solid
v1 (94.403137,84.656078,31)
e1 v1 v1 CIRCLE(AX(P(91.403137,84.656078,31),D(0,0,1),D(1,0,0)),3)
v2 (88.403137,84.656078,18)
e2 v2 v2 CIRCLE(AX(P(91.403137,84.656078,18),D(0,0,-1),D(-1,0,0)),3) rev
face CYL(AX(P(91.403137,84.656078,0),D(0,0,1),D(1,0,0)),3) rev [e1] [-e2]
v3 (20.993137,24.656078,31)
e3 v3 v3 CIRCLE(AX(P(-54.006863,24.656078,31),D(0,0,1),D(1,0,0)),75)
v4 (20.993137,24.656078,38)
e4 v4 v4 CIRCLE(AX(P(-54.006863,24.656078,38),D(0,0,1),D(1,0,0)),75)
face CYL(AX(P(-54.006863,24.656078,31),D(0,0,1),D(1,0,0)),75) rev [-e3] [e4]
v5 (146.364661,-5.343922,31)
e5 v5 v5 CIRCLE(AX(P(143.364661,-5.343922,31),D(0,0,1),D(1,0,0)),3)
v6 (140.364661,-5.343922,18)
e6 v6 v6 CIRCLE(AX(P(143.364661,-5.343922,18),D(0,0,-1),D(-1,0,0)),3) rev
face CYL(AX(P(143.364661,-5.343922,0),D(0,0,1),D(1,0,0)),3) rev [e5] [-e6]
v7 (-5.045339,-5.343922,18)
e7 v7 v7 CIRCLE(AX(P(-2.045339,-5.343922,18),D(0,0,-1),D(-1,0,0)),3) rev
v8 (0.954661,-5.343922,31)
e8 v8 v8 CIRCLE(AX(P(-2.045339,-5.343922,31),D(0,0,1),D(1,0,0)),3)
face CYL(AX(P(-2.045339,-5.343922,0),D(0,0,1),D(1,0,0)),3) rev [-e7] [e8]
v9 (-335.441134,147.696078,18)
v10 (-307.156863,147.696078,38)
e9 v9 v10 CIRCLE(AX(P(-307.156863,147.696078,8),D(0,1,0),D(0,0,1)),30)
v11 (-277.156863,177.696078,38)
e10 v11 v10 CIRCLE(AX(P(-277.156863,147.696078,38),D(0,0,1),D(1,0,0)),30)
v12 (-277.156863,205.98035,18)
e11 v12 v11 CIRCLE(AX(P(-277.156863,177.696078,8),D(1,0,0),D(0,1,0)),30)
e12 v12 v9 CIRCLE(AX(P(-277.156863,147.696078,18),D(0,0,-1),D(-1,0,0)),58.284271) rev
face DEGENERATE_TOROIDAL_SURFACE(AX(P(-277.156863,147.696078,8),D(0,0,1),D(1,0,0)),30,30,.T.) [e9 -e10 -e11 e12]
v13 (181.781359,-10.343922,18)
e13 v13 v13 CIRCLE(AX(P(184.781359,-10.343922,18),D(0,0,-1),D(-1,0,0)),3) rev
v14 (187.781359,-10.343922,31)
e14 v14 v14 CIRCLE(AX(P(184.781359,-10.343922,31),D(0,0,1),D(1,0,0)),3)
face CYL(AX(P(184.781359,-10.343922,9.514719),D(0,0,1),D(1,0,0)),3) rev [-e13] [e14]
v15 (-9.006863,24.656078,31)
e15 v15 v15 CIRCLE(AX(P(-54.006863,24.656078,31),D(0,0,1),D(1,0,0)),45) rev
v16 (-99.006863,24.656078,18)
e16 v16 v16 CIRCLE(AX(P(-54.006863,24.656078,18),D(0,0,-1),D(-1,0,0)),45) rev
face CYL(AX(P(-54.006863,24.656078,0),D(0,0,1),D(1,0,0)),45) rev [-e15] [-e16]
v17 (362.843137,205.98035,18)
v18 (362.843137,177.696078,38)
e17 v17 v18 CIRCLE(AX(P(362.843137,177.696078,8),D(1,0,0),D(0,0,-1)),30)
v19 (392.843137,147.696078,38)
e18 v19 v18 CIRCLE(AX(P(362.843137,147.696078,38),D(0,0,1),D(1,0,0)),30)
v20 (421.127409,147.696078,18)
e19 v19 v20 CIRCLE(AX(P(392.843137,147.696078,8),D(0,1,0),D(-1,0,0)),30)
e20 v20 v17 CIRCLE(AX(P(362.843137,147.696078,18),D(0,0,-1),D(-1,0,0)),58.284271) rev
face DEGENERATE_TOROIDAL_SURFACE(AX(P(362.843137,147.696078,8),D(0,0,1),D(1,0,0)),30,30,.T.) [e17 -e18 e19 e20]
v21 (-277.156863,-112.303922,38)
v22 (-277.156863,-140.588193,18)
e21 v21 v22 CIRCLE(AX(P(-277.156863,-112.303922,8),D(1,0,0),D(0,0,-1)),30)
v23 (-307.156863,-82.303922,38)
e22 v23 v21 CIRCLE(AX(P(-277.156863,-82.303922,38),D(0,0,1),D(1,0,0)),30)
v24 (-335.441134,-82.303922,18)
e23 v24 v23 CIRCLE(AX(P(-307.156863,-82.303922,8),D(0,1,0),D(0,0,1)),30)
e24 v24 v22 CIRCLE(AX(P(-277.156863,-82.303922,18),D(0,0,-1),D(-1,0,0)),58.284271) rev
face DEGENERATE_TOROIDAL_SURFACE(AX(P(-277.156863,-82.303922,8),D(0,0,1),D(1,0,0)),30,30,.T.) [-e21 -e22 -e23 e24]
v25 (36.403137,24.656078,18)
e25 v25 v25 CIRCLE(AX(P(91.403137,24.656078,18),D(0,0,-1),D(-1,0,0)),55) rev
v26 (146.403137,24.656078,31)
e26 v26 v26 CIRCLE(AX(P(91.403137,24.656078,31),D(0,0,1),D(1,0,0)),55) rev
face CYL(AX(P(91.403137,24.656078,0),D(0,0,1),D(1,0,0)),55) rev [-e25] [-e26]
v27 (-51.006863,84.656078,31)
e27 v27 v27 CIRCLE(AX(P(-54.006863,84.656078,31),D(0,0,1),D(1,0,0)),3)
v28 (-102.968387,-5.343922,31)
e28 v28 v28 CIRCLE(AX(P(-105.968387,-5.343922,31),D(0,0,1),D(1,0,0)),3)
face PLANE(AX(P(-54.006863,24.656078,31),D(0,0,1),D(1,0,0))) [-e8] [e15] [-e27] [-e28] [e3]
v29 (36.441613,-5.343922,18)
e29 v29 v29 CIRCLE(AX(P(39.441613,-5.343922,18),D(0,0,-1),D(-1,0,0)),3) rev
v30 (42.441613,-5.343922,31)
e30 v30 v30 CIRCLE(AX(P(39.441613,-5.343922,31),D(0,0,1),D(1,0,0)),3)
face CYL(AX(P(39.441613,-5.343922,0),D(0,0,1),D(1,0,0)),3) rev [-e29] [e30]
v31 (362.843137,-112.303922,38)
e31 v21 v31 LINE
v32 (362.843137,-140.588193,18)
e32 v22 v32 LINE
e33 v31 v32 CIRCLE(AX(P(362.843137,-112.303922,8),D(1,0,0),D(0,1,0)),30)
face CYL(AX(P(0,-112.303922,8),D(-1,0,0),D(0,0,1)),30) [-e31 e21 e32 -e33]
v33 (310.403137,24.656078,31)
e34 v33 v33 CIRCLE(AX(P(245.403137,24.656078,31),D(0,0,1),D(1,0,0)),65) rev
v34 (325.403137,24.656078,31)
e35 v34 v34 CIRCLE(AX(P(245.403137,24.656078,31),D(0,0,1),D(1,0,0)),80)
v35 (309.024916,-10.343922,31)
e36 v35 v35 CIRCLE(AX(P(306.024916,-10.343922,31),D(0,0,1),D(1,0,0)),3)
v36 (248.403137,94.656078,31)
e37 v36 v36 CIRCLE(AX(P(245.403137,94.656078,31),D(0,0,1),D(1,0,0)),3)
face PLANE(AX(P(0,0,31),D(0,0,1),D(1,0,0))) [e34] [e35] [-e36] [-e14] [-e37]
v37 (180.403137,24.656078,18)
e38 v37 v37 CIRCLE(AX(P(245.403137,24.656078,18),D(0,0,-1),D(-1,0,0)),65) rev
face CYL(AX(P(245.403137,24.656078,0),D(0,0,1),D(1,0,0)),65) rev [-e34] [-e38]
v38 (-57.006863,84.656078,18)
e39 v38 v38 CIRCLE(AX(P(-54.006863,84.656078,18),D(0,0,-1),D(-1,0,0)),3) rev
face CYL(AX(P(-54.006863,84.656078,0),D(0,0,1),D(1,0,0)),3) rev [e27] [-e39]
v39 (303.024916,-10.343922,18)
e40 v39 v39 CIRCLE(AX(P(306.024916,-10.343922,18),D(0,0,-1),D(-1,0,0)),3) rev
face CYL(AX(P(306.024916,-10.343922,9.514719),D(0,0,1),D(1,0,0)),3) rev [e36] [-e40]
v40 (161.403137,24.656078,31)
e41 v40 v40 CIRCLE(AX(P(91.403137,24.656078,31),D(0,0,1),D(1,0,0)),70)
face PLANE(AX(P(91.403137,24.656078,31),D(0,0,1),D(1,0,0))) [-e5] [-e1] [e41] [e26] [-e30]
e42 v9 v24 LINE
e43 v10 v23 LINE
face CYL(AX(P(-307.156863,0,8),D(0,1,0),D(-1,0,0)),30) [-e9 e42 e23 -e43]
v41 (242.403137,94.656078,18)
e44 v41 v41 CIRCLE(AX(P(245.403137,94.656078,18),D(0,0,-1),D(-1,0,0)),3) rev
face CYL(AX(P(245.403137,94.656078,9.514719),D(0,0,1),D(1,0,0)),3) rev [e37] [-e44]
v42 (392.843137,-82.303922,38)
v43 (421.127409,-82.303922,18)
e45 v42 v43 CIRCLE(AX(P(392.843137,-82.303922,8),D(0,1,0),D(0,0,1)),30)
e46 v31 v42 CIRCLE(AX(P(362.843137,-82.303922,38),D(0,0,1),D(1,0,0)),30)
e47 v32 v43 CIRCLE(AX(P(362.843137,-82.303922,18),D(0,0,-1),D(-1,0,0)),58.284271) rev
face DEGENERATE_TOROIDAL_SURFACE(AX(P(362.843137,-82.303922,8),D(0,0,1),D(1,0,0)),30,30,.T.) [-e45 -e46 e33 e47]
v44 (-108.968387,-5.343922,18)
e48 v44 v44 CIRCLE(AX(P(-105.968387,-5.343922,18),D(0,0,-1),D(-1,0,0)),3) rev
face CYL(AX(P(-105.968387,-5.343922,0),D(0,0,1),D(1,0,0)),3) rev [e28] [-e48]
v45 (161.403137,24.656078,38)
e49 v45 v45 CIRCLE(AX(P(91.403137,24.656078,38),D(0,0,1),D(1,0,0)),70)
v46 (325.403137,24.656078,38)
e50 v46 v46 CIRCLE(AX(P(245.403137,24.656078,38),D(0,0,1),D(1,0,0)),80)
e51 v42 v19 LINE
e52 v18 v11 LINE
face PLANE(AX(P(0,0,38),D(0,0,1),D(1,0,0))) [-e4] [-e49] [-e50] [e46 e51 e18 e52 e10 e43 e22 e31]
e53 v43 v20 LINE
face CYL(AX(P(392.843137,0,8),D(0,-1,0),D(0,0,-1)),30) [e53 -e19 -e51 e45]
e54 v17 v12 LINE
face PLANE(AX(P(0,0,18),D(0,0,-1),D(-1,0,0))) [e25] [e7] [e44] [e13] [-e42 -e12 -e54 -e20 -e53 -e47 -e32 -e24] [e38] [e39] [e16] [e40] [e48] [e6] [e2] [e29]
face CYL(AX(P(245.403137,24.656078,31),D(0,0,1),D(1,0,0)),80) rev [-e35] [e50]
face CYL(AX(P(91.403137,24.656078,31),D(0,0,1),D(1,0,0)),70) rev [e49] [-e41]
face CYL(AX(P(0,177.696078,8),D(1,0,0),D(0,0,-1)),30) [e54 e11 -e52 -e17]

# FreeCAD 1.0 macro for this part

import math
import FreeCAD as App
import Part
import Sketcher


def edges_at(feature, points):
    """Names of the edges that pass closest to the given points."""
    edges = feature.Shape.Edges
    near = lambda p: min(range(len(edges)), key=lambda i: edges[i].distToShape(Part.Vertex(*p))[0])
    return sorted({f"Edge{near(p) + 1}" for p in points})


def add_polygon(sketch, points):
    """Adds a closed chain of lines whose ends are joined by coincident constraints."""
    first, n = sketch.GeometryCount, len(points)
    for a, b in zip(points, points[1:] + points[:1]):
        sketch.addGeometry(Part.LineSegment(App.Vector(*a, 0), App.Vector(*b, 0)), False)
    for i in range(n):
        sketch.addConstraint(Sketcher.Constraint("Coincident", first + i, 2, first + (i + 1) % n, 1))

doc = App.newDocument("Part")
body = doc.addObject("PartDesign::Body", "Body")

# Sketch on XY plane
sketch1 = body.newObject("Sketcher::SketchObject", "Sketch")
sketch1.AttachmentSupport = (doc.getObject("XY_Plane"), [""])
sketch1.MapMode = "FlatFace"
add_polygon(sketch1, [(-337.156863, 207.696078), (-337.156863, -142.303922), (422.843137, -142.303922), (422.843137, 207.696078)])  # lines 0-3
sketch1.addConstraint([
    Sketcher.Constraint("Vertical", 0),
    Sketcher.Constraint("Horizontal", 1),
    Sketcher.Constraint("Vertical", 2),
    Sketcher.Constraint("Horizontal", 3),
    Sketcher.Constraint("DistanceX", 1, 1, 1, 2, 760.0),
    Sketcher.Constraint("DistanceY", 0, 2, 0, 1, 350.0),
    Sketcher.Constraint("DistanceY", 0, 2, -1, 1, 142.303922),
    Sketcher.Constraint("DistanceX", 0, 2, -1, 1, 337.156863),
])
pad1 = body.newObject("PartDesign::Pad", "Pad")
pad1.Profile = sketch1
pad1.Length = 38

# Sketch on XY plane
sketch2 = body.newObject("Sketcher::SketchObject", "Sketch001")
sketch2.AttachmentSupport = (doc.getObject("XY_Plane"), [""])
sketch2.MapMode = "FlatFace"
sketch2.AttachmentOffset = App.Placement(App.Vector(0, 0, 38), App.Rotation())
sketch2.addGeometry([
    Part.Circle(App.Vector(245.403137, 24.656078, 0), App.Vector(0, 0, 1), 65),
    Part.Circle(App.Vector(91.403137, 24.656078, 0), App.Vector(0, 0, 1), 55),
    Part.Circle(App.Vector(-54.006863, 24.656078, 0), App.Vector(0, 0, 1), 45),
], False)
sketch2.addConstraint([
    Sketcher.Constraint("Horizontal", 0, 3, 1, 3),
    Sketcher.Constraint("Horizontal", 1, 3, 2, 3),
    Sketcher.Constraint("Diameter", 0, 130.0),
    Sketcher.Constraint("Diameter", 1, 110.0),
    Sketcher.Constraint("Diameter", 2, 90.0),
    Sketcher.Constraint("DistanceX", 1, 3, 0, 3, 154.0),
    Sketcher.Constraint("DistanceX", 2, 3, 1, 3, 145.41),
    Sketcher.Constraint("DistanceY", -1, 1, 0, 3, 24.656078),
    Sketcher.Constraint("DistanceX", -1, 1, 0, 3, 245.403137),
])
pocket1 = body.newObject("PartDesign::Pocket", "Pocket")
pocket1.Profile = sketch2
pocket1.Type = "ThroughAll"

# Sketch on XY plane
sketch3 = body.newObject("Sketcher::SketchObject", "Sketch002")
sketch3.AttachmentSupport = (doc.getObject("XY_Plane"), [""])
sketch3.MapMode = "FlatFace"
sketch3.AttachmentOffset = App.Placement(App.Vector(0, 0, 38), App.Rotation())
sketch3.addGeometry(Part.Circle(App.Vector(-54.006863, 24.656078, 0), App.Vector(0, 0, 1), 75), False)
sketch3.addConstraint([
    Sketcher.Constraint("Diameter", 0, 150.0),
    Sketcher.Constraint("DistanceY", -1, 1, 0, 3, 24.656078),
    Sketcher.Constraint("DistanceX", 0, 3, -1, 1, 54.006863),
])
pocket2 = body.newObject("PartDesign::Pocket", "Pocket001")
pocket2.Profile = sketch3
pocket2.Length = 7

# Sketch on XY plane
sketch4 = body.newObject("Sketcher::SketchObject", "Sketch003")
sketch4.AttachmentSupport = (doc.getObject("XY_Plane"), [""])
sketch4.MapMode = "FlatFace"
sketch4.AttachmentOffset = App.Placement(App.Vector(0, 0, 38), App.Rotation())
sketch4.addGeometry(Part.Circle(App.Vector(91.403137, 24.656078, 0), App.Vector(0, 0, 1), 70), False)
sketch4.addConstraint([
    Sketcher.Constraint("Diameter", 0, 140.0),
    Sketcher.Constraint("DistanceY", -1, 1, 0, 3, 24.656078),
    Sketcher.Constraint("DistanceX", -1, 1, 0, 3, 91.403137),
])
pocket3 = body.newObject("PartDesign::Pocket", "Pocket002")
pocket3.Profile = sketch4
pocket3.Length = 7

# Sketch on XY plane
sketch5 = body.newObject("Sketcher::SketchObject", "Sketch004")
sketch5.AttachmentSupport = (doc.getObject("XY_Plane"), [""])
sketch5.MapMode = "FlatFace"
sketch5.AttachmentOffset = App.Placement(App.Vector(0, 0, 38), App.Rotation())
sketch5.addGeometry([
    Part.Circle(App.Vector(-54.006863, 84.656078, 0), App.Vector(0, 0, 1), 3),  # 0
    Part.Circle(App.Vector(-2.045339, -5.343922, 0), App.Vector(0, 0, 1), 3),  # 1
    Part.Circle(App.Vector(-105.968387, -5.343922, 0), App.Vector(0, 0, 1), 3),  # 2
    Part.Circle(App.Vector(91.403137, 84.656078, 0), App.Vector(0, 0, 1), 3),  # 3
    Part.Circle(App.Vector(143.364661, -5.343922, 0), App.Vector(0, 0, 1), 3),  # 4
    Part.Circle(App.Vector(39.441613, -5.343922, 0), App.Vector(0, 0, 1), 3),  # 5
], False)
sketch5.addConstraint([
    Sketcher.Constraint("Equal", 0, 1),
    Sketcher.Constraint("Equal", 1, 2),
    Sketcher.Constraint("Equal", 2, 3),
    Sketcher.Constraint("Equal", 3, 4),
    Sketcher.Constraint("Equal", 4, 5),
    Sketcher.Constraint("Horizontal", 1, 3, 2, 3),
    Sketcher.Constraint("Horizontal", 0, 3, 3, 3),
    Sketcher.Constraint("Horizontal", 2, 3, 4, 3),
    Sketcher.Constraint("Horizontal", 4, 3, 5, 3),
    Sketcher.Constraint("Diameter", 0, 6.0),
    Sketcher.Constraint("DistanceY", 1, 3, 0, 3, 90.0),
    Sketcher.Constraint("DistanceX", 0, 3, 3, 3, 145.41),
    Sketcher.Constraint("DistanceX", 1, 3, 4, 3, 145.41),
    Sketcher.Constraint("DistanceX", 2, 3, 5, 3, 145.41),
    Sketcher.Constraint("DistanceY", -1, 1, 0, 3, 84.656078),
    Sketcher.Constraint("DistanceX", 1, 3, -1, 1, 2.045339),
    Sketcher.Constraint("DistanceX", 2, 3, 1, 3, 103.923048),
    Sketcher.Constraint("DistanceX", 0, 3, -1, 1, 54.006863),
])
pocket4 = body.newObject("PartDesign::Pocket", "Pocket003")
pocket4.Profile = sketch5
pocket4.Type = "ThroughAll"

# Sketch on XY plane
sketch6 = body.newObject("Sketcher::SketchObject", "Sketch005")
sketch6.AttachmentSupport = (doc.getObject("XY_Plane"), [""])
sketch6.MapMode = "FlatFace"
sketch6.AttachmentOffset = App.Placement(App.Vector(0, 0, 38), App.Rotation())
add_polygon(sketch6, [(-421.915, 292.454), (-421.915, -227.062), (507.601, -227.062), (507.601, 292.454)])  # lines 0-3
sketch6.addGeometry(Part.ArcOfCircle(Part.Circle(App.Vector(-277.156863, 147.696078, 0), App.Vector(0, 0, 1), 60), math.radians(90), math.radians(180)), False)  # 4
sketch6.addGeometry(Part.LineSegment(App.Vector(-277.156863, 207.696078, 0), App.Vector(362.843137, 207.696078, 0)), False)  # 5
sketch6.addGeometry(Part.ArcOfCircle(Part.Circle(App.Vector(362.843137, 147.696078, 0), App.Vector(0, 0, 1), 60), math.radians(0), math.radians(90)), False)  # 6
sketch6.addGeometry(Part.LineSegment(App.Vector(422.843137, 147.696078, 0), App.Vector(422.843137, -82.303922, 0)), False)  # 7
sketch6.addGeometry(Part.ArcOfCircle(Part.Circle(App.Vector(362.843137, -82.303922, 0), App.Vector(0, 0, 1), 60), math.radians(-90), math.radians(0)), False)  # 8
sketch6.addGeometry(Part.LineSegment(App.Vector(362.843137, -142.303922, 0), App.Vector(-277.156863, -142.303922, 0)), False)  # 9
sketch6.addGeometry(Part.ArcOfCircle(Part.Circle(App.Vector(-277.156863, -82.303922, 0), App.Vector(0, 0, 1), 60), math.radians(-180), math.radians(-90)), False)  # 10
sketch6.addGeometry(Part.LineSegment(App.Vector(-337.156863, -82.303922, 0), App.Vector(-337.156863, 147.696078, 0)), False)  # 11
sketch6.addConstraint([
    Sketcher.Constraint("Tangent", 4, 1, 5, 1),
    Sketcher.Constraint("Tangent", 5, 2, 6, 2),
    Sketcher.Constraint("Tangent", 6, 1, 7, 1),
    Sketcher.Constraint("Tangent", 7, 2, 8, 2),
    Sketcher.Constraint("Tangent", 8, 1, 9, 1),
    Sketcher.Constraint("Tangent", 9, 2, 10, 2),
    Sketcher.Constraint("Tangent", 10, 1, 11, 1),
    Sketcher.Constraint("Tangent", 11, 2, 4, 2),
    Sketcher.Constraint("Vertical", 0),
    Sketcher.Constraint("Horizontal", 1),
    Sketcher.Constraint("Vertical", 2),
    Sketcher.Constraint("Horizontal", 3),
    Sketcher.Constraint("Horizontal", 5),
    Sketcher.Constraint("Vertical", 7),
    Sketcher.Constraint("Horizontal", 9),
    Sketcher.Constraint("Vertical", 11),
    Sketcher.Constraint("Equal", 4, 6),
    Sketcher.Constraint("Equal", 6, 8),
    Sketcher.Constraint("Equal", 8, 10),
    Sketcher.Constraint("Radius", 4, 60.0),
    Sketcher.Constraint("DistanceX", 5, 1, 5, 2, 640.0),
    Sketcher.Constraint("DistanceY", 7, 2, 7, 1, 230.0),
    Sketcher.Constraint("DistanceX", 1, 1, 1, 2, 929.516),
    Sketcher.Constraint("DistanceY", 0, 2, 0, 1, 519.516),
    Sketcher.Constraint("DistanceX", 0, 2, -1, 1, 421.915),
    Sketcher.Constraint("DistanceY", 0, 2, -1, 1, 227.062),
    Sketcher.Constraint("DistanceY", -1, 1, 4, 3, 147.696078),
    Sketcher.Constraint("DistanceX", 4, 3, -1, 1, 277.156863),
])
pocket5 = body.newObject("PartDesign::Pocket", "Pocket004")
pocket5.Profile = sketch6
pocket5.Type = "ThroughAll"
doc.recompute()

fillet = body.newObject("PartDesign::Fillet", "Fillet")
fillet.Base = (pocket5, edges_at(pocket5, [
    (-337.157, 32.696, 38),
    (42.843, -142.304, 38),
    (422.843, 32.696, 38),
    (42.843, 207.696, 38),
    (405.27, -124.73, 38),
    (-319.583, -124.73, 38),
    (-319.583, 190.122, 38),
    (405.27, 190.122, 38),
]))
fillet.Radius = 30

# Sketch on XY plane
sketch7 = body.newObject("Sketcher::SketchObject", "Sketch006")
sketch7.AttachmentSupport = (doc.getObject("XY_Plane"), [""])
sketch7.MapMode = "FlatFace"
add_polygon(sketch7, [(422.843137, 207.696078), (422.843137, -142.303922), (-337.156863, -142.303922), (-337.156863, 207.696078)])  # lines 0-3
sketch7.addConstraint([
    Sketcher.Constraint("Vertical", 0),
    Sketcher.Constraint("Horizontal", 1),
    Sketcher.Constraint("Vertical", 2),
    Sketcher.Constraint("Horizontal", 3),
    Sketcher.Constraint("DistanceX", 1, 2, 1, 1, 760.0),
    Sketcher.Constraint("DistanceY", 0, 2, 0, 1, 350.0),
    Sketcher.Constraint("DistanceY", 0, 2, -1, 1, 142.303922),
    Sketcher.Constraint("DistanceX", -1, 1, 0, 2, 422.843137),
])
pocket6 = body.newObject("PartDesign::Pocket", "Pocket005")
pocket6.Profile = sketch7
pocket6.Length = 18
pocket6.Reversed = True

# Sketch on XY plane
sketch8 = body.newObject("Sketcher::SketchObject", "Sketch007")
sketch8.AttachmentSupport = (doc.getObject("XY_Plane"), [""])
sketch8.MapMode = "FlatFace"
sketch8.AttachmentOffset = App.Placement(App.Vector(0, 0, 38), App.Rotation())
sketch8.addGeometry([
    Part.Circle(App.Vector(245.403137, 24.656078, 0), App.Vector(0, 0, 1), 80),
    Part.Circle(App.Vector(184.781359, -10.343922, 0), App.Vector(0, 0, 1), 3),
    Part.Circle(App.Vector(306.024916, -10.343922, 0), App.Vector(0, 0, 1), 3),
    Part.Circle(App.Vector(245.403137, 94.656078, 0), App.Vector(0, 0, 1), 3),
], False)
sketch8.addConstraint([
    Sketcher.Constraint("Equal", 1, 2),
    Sketcher.Constraint("Equal", 2, 3),
    Sketcher.Constraint("Horizontal", 1, 3, 2, 3),
    Sketcher.Constraint("Vertical", 0, 3, 3, 3),
    Sketcher.Constraint("Diameter", 0, 160.0),
    Sketcher.Constraint("Diameter", 1, 6.0),
    Sketcher.Constraint("DistanceY", 1, 3, 0, 3, 35.0),
    Sketcher.Constraint("DistanceY", 0, 3, 3, 3, 70.0),
    Sketcher.Constraint("DistanceY", -1, 1, 0, 3, 24.656078),
    Sketcher.Constraint("DistanceX", -1, 1, 1, 3, 184.781359),
    Sketcher.Constraint("DistanceX", 1, 3, 0, 3, 60.621778),
    Sketcher.Constraint("DistanceX", 0, 3, 2, 3, 60.621778),
])
pocket7 = body.newObject("PartDesign::Pocket", "Pocket006")
pocket7.Profile = sketch8
pocket7.Length = 7

# Sketch on XY plane
sketch9 = body.newObject("Sketcher::SketchObject", "Sketch008")
sketch9.AttachmentSupport = (doc.getObject("XY_Plane"), [""])
sketch9.MapMode = "FlatFace"
sketch9.AttachmentOffset = App.Placement(App.Vector(0, 0, 38), App.Rotation())
sketch9.addGeometry([
    Part.Circle(App.Vector(245.403137, 94.656078, 0), App.Vector(0, 0, 1), 3),
    Part.Circle(App.Vector(184.781359, -10.343922, 0), App.Vector(0, 0, 1), 3),
    Part.Circle(App.Vector(306.024916, -10.343922, 0), App.Vector(0, 0, 1), 3),
], False)
sketch9.addConstraint([
    Sketcher.Constraint("Equal", 0, 1),
    Sketcher.Constraint("Equal", 1, 2),
    Sketcher.Constraint("Horizontal", 1, 3, 2, 3),
    Sketcher.Constraint("Diameter", 0, 6.0),
    Sketcher.Constraint("DistanceY", 1, 3, 0, 3, 105.0),
    Sketcher.Constraint("DistanceY", -1, 1, 0, 3, 94.656078),
    Sketcher.Constraint("DistanceX", -1, 1, 1, 3, 184.781359),
    Sketcher.Constraint("DistanceX", 1, 3, 0, 3, 60.621778),
    Sketcher.Constraint("DistanceX", 0, 3, 2, 3, 60.621778),
])
pocket8 = body.newObject("PartDesign::Pocket", "Pocket007")
pocket8.Profile = sketch9
pocket8.Length = 20

doc.recompute()
